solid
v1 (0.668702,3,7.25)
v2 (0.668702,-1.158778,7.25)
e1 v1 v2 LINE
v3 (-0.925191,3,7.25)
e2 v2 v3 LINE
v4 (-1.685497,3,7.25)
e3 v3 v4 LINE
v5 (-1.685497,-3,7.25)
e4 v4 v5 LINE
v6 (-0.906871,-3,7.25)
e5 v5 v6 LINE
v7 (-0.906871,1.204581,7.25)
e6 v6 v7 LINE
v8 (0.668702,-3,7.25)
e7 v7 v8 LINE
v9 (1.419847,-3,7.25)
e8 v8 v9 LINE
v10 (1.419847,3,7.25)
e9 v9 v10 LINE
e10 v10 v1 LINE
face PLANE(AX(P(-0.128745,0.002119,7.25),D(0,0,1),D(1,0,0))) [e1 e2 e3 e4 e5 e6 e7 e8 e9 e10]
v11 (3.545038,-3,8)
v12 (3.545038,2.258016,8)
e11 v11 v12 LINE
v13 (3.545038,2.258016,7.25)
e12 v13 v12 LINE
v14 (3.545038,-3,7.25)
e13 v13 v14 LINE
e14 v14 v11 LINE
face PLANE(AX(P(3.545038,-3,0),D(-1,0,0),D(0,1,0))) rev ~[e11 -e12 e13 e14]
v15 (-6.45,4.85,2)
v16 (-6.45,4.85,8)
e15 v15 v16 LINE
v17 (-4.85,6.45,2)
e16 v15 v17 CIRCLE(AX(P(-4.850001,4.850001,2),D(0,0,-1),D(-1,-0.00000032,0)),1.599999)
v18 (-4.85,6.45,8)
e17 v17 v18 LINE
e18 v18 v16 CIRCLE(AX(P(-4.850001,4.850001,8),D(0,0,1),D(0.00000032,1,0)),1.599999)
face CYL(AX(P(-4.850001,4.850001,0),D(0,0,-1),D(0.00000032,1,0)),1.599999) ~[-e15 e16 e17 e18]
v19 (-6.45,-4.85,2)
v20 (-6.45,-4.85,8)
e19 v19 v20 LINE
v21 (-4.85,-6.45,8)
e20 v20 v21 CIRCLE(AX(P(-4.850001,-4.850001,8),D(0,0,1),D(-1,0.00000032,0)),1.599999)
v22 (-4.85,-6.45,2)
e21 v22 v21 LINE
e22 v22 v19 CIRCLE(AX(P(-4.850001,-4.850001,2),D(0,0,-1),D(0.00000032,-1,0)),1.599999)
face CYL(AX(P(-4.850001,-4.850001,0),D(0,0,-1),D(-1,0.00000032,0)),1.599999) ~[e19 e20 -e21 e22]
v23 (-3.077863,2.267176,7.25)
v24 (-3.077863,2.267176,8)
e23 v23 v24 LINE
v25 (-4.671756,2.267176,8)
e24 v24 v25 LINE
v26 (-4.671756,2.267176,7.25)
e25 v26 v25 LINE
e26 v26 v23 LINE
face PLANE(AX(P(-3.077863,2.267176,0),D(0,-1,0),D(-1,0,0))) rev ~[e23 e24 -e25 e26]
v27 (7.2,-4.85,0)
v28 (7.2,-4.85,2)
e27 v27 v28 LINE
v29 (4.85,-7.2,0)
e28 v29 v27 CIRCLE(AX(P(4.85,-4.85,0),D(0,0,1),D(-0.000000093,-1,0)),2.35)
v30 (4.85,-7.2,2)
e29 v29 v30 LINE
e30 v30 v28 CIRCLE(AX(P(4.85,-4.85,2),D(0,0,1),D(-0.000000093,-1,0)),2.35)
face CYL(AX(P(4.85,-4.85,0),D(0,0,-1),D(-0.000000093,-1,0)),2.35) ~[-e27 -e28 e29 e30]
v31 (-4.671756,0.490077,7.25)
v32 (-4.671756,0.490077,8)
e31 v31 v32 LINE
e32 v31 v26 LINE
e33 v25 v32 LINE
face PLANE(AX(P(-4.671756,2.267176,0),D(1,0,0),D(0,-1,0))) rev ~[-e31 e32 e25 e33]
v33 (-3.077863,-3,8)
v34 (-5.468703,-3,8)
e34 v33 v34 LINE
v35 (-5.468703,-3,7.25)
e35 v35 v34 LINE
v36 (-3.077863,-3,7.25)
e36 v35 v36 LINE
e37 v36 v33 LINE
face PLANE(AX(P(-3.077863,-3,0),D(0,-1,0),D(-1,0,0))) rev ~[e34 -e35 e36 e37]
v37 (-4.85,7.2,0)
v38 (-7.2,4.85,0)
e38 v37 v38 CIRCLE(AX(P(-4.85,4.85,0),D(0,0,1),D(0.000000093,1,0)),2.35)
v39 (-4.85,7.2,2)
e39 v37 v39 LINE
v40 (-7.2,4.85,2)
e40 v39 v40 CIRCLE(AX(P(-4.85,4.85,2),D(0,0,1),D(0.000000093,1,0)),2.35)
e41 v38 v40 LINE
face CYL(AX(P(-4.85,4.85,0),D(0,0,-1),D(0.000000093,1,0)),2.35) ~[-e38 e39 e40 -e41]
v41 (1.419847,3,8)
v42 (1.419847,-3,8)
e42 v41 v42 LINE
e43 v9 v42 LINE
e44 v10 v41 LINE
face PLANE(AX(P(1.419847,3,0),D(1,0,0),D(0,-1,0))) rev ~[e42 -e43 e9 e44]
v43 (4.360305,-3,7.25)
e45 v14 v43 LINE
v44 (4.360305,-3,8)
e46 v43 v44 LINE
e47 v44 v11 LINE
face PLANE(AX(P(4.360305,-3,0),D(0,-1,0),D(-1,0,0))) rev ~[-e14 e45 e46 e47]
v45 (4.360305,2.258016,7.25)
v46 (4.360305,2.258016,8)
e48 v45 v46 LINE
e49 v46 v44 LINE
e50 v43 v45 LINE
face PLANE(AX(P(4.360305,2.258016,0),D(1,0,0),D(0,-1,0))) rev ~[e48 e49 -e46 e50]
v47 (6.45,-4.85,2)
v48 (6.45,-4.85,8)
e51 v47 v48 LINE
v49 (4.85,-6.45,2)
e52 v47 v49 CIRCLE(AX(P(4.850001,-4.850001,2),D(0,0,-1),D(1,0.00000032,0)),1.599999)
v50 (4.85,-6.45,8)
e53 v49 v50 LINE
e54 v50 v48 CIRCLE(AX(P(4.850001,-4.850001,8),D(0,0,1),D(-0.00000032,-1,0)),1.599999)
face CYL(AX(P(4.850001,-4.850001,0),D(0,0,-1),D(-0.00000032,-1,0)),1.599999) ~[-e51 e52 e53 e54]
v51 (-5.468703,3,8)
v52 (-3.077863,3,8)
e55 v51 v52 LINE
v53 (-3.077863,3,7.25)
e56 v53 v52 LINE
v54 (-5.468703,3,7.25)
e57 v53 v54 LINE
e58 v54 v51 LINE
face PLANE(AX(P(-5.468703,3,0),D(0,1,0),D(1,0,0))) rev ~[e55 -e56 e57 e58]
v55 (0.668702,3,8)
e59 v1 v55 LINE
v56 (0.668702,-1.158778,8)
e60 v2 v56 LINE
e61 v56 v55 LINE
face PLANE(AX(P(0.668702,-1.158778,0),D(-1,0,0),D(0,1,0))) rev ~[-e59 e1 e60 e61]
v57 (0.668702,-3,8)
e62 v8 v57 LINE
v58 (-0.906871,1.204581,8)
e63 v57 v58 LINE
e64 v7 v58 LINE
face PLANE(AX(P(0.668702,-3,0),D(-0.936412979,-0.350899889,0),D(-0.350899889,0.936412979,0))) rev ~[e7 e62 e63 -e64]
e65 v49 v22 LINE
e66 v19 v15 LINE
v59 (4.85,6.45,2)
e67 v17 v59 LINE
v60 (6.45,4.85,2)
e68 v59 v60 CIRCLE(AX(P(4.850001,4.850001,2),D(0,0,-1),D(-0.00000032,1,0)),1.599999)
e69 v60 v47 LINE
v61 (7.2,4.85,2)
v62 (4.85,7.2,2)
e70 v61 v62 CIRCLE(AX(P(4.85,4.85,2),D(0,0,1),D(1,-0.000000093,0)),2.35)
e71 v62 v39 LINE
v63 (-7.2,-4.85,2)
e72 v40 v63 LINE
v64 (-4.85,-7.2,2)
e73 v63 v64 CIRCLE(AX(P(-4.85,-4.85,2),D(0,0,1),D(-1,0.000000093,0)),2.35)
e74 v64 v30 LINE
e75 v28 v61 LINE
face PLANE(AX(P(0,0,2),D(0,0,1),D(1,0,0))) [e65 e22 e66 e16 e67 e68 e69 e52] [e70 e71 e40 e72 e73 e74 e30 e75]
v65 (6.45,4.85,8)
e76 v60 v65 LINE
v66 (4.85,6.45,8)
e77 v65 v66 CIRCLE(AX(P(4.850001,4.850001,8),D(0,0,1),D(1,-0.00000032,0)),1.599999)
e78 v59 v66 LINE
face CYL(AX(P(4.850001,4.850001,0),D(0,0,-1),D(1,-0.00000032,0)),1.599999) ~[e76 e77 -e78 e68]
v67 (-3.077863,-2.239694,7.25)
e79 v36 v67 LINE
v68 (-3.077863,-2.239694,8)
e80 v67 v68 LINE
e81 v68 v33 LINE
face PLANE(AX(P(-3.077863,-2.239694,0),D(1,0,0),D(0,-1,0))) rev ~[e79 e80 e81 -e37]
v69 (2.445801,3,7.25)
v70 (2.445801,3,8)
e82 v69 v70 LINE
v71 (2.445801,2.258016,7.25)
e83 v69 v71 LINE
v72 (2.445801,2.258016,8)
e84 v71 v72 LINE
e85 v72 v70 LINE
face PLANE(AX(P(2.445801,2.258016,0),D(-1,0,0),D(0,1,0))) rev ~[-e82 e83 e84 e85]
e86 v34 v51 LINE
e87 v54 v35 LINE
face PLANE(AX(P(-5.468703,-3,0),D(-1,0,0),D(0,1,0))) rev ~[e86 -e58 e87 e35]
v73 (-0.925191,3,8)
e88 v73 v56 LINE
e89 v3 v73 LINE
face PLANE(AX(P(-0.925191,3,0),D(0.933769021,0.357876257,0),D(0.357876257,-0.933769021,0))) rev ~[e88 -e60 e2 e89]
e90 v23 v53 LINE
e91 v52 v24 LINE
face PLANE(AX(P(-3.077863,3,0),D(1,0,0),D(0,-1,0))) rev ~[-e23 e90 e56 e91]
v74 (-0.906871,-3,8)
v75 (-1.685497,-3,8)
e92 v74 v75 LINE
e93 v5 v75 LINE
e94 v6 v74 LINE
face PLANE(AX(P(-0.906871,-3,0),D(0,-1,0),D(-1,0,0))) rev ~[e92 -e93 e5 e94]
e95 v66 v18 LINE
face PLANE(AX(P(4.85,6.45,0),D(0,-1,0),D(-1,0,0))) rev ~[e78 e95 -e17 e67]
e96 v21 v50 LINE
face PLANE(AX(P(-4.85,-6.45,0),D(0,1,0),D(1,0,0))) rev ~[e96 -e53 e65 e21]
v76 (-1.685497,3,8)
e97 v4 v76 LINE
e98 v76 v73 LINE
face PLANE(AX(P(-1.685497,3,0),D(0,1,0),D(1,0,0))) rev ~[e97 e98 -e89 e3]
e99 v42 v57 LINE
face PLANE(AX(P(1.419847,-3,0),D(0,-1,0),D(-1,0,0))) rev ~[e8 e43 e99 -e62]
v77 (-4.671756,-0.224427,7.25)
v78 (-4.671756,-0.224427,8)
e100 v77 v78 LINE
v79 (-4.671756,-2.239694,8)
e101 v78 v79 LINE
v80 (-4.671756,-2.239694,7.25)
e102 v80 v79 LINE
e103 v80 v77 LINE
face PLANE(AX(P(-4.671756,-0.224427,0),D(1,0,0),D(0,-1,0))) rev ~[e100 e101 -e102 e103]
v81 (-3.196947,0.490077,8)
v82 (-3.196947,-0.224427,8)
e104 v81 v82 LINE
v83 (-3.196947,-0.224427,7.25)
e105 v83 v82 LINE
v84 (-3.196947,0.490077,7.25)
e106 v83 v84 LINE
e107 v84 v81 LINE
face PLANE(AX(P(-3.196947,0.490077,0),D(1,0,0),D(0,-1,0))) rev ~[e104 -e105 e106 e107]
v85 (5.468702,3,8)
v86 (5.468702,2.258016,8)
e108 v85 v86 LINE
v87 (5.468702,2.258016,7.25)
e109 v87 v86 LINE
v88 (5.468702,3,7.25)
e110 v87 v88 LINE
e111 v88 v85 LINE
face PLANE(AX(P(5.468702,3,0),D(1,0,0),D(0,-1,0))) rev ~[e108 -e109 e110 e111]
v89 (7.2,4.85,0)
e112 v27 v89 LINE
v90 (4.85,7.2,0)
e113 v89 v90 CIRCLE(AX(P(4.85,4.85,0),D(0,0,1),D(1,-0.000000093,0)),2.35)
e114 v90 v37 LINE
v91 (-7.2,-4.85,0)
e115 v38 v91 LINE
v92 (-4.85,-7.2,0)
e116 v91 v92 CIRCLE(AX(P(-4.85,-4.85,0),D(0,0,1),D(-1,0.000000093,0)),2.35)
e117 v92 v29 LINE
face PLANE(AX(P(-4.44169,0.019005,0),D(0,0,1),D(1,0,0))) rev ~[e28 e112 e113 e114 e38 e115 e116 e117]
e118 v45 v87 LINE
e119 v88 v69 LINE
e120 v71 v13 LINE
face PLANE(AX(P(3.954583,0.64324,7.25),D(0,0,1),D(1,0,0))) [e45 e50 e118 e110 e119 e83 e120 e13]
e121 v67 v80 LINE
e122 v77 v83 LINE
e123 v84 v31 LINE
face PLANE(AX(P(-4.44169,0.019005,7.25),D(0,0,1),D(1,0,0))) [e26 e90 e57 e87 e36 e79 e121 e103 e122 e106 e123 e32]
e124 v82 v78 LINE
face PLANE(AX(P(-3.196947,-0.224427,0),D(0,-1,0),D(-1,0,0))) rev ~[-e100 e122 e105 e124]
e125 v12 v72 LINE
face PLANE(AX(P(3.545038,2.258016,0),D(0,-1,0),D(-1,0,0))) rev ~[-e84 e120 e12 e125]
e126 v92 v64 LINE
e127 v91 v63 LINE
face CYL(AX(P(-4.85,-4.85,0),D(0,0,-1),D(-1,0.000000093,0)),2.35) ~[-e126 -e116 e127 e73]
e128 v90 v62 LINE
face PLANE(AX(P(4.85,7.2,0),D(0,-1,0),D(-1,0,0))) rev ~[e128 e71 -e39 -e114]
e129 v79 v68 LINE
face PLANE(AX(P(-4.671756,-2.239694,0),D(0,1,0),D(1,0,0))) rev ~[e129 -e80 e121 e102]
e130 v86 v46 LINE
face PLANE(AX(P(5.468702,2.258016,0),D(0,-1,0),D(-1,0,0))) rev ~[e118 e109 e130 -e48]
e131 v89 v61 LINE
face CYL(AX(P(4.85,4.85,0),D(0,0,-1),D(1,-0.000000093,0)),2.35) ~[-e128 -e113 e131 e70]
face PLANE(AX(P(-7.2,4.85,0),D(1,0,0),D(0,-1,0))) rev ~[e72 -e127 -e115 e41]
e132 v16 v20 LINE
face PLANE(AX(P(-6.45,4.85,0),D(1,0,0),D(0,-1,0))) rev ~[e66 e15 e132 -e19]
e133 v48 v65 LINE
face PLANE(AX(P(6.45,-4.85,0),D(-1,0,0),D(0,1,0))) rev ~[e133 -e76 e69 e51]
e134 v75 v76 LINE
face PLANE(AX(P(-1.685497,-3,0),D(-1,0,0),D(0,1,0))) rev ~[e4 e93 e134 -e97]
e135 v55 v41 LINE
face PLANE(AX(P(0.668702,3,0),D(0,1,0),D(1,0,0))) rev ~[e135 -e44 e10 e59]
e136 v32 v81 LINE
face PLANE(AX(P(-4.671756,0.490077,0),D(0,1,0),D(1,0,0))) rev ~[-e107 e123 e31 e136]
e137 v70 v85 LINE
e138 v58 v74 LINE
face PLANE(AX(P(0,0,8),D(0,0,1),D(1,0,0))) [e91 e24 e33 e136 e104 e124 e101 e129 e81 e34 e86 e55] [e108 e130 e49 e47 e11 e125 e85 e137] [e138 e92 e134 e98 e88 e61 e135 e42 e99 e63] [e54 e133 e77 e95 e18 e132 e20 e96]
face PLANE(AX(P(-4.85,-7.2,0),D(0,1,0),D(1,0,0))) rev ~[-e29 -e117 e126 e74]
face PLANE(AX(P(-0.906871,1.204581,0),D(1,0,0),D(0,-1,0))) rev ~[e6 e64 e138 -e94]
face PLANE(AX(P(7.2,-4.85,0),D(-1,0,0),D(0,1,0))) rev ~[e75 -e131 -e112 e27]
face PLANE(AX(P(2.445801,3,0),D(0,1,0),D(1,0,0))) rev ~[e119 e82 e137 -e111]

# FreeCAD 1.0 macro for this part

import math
import FreeCAD as App
import Part
import Sketcher
from FreeCAD import Vector
Q = App.Units.Quantity

doc = App.newDocument("Part")
body = doc.addObject("PartDesign::Body", "Body")

# Sketch on XY plane
sketch1 = body.newObject("Sketcher::SketchObject", "Sketch")
sketch1.AttachmentSupport = (doc.getObject("XY_Plane"), [""])
sketch1.MapMode = "FlatFace"
sketch1.addGeometry(Part.LineSegment(Vector(4.85, 7.2, 0), Vector(-4.85, 7.2, 0)), False)
sketch1.addGeometry(Part.ArcOfCircle(Part.Circle(Vector(-4.85, 4.85, 0), Vector(0, 0, 1), 2.35), math.radians(89.999995), math.radians(180.000005)), False)
sketch1.addGeometry(Part.LineSegment(Vector(-7.2, 4.85, 0), Vector(-7.2, -4.85, 0)), False)
sketch1.addGeometry(Part.ArcOfCircle(Part.Circle(Vector(-4.85, -4.85, 0), Vector(0, 0, 1), 2.35), math.radians(179.999995), math.radians(270.000005)), False)
sketch1.addGeometry(Part.LineSegment(Vector(-4.85, -7.2, 0), Vector(4.85, -7.2, 0)), False)
sketch1.addGeometry(Part.ArcOfCircle(Part.Circle(Vector(4.85, -4.85, 0), Vector(0, 0, 1), 2.35), math.radians(-90.000005), math.radians(0.000005)), False)
sketch1.addGeometry(Part.LineSegment(Vector(7.2, -4.85, 0), Vector(7.2, 4.85, 0)), False)
sketch1.addGeometry(Part.ArcOfCircle(Part.Circle(Vector(4.85, 4.85, 0), Vector(0, 0, 1), 2.35), math.radians(-0.000005), math.radians(90.000005)), False)
sketch1.addGeometry(Part.LineSegment(Vector(6.45, 4.85, 0), Vector(6.45, -4.85, 0)), False)
sketch1.addGeometry(Part.ArcOfCircle(Part.Circle(Vector(4.850001, -4.850001, 0), Vector(0, 0, 1), 1.599999), math.radians(-90.000018), math.radians(0.000018)), False)
sketch1.addGeometry(Part.LineSegment(Vector(4.85, -6.45, 0), Vector(-4.85, -6.45, 0)), False)
sketch1.addGeometry(Part.ArcOfCircle(Part.Circle(Vector(-4.850001, -4.850001, 0), Vector(0, 0, 1), 1.599999), math.radians(179.999982), math.radians(270.000018)), False)
sketch1.addGeometry(Part.LineSegment(Vector(-6.45, -4.85, 0), Vector(-6.45, 4.85, 0)), False)
sketch1.addGeometry(Part.ArcOfCircle(Part.Circle(Vector(-4.850001, 4.850001, 0), Vector(0, 0, 1), 1.599999), math.radians(89.999982), math.radians(180.000018)), False)
sketch1.addGeometry(Part.LineSegment(Vector(-4.85, 6.45, 0), Vector(4.85, 6.45, 0)), False)
sketch1.addGeometry(Part.ArcOfCircle(Part.Circle(Vector(4.850001, 4.850001, 0), Vector(0, 0, 1), 1.599999), math.radians(-0.000018), math.radians(90.000018)), False)
sketch1.addConstraint(Sketcher.Constraint("Tangent", 0, 2, 1, 1))
sketch1.addConstraint(Sketcher.Constraint("Tangent", 1, 2, 2, 1))
sketch1.addConstraint(Sketcher.Constraint("Tangent", 2, 2, 3, 1))
sketch1.addConstraint(Sketcher.Constraint("Tangent", 3, 2, 4, 1))
sketch1.addConstraint(Sketcher.Constraint("Tangent", 4, 2, 5, 1))
sketch1.addConstraint(Sketcher.Constraint("Tangent", 5, 2, 6, 1))
sketch1.addConstraint(Sketcher.Constraint("Tangent", 6, 2, 7, 1))
sketch1.addConstraint(Sketcher.Constraint("Tangent", 7, 2, 0, 1))
sketch1.addConstraint(Sketcher.Constraint("Tangent", 8, 2, 9, 2))
sketch1.addConstraint(Sketcher.Constraint("Tangent", 9, 1, 10, 1))
sketch1.addConstraint(Sketcher.Constraint("Tangent", 10, 2, 11, 2))
sketch1.addConstraint(Sketcher.Constraint("Tangent", 11, 1, 12, 1))
sketch1.addConstraint(Sketcher.Constraint("Tangent", 12, 2, 13, 2))
sketch1.addConstraint(Sketcher.Constraint("Tangent", 13, 1, 14, 1))
sketch1.addConstraint(Sketcher.Constraint("Tangent", 14, 2, 15, 2))
sketch1.addConstraint(Sketcher.Constraint("Tangent", 15, 1, 8, 1))
sketch1.addConstraint(Sketcher.Constraint("Horizontal", 0))
sketch1.addConstraint(Sketcher.Constraint("Vertical", 2))
sketch1.addConstraint(Sketcher.Constraint("Horizontal", 4))
sketch1.addConstraint(Sketcher.Constraint("Vertical", 6))
sketch1.addConstraint(Sketcher.Constraint("Vertical", 8))
sketch1.addConstraint(Sketcher.Constraint("Horizontal", 10))
sketch1.addConstraint(Sketcher.Constraint("Vertical", 12))
sketch1.addConstraint(Sketcher.Constraint("Horizontal", 14))
sketch1.addConstraint(Sketcher.Constraint("Coincident", 9, 3, 5, 3))
sketch1.addConstraint(Sketcher.Constraint("Coincident", 11, 3, 3, 3))
sketch1.addConstraint(Sketcher.Constraint("Coincident", 13, 3, 1, 3))
sketch1.addConstraint(Sketcher.Constraint("Equal", 1, 3))
sketch1.addConstraint(Sketcher.Constraint("Equal", 3, 5))
sketch1.addConstraint(Sketcher.Constraint("Equal", 5, 7))
sketch1.addConstraint(Sketcher.Constraint("Equal", 13, 15))
sketch1.addConstraint(Sketcher.Constraint("Symmetric", 1, 3, 5, 3, -1, 1))
sketch1.addConstraint(Sketcher.Constraint("Equal", 14, 2))
sketch1.addConstraint(Sketcher.Constraint("Radius", 9, Q("1.599999 mm")))
sketch1.addConstraint(Sketcher.Constraint("Radius", 1, Q("2.35 mm")))
sketch1.addConstraint(Sketcher.Constraint("DistanceX", 0, 2, 0, 1, Q("9.7 mm")))
pad1 = body.newObject("PartDesign::Pad", "Pad")
pad1.Profile = sketch1
pad1.Length = 2

# Sketch on XY plane
sketch2 = body.newObject("Sketcher::SketchObject", "Sketch001")
sketch2.AttachmentSupport = (doc.getObject("XY_Plane"), [""])
sketch2.MapMode = "FlatFace"
sketch2.addGeometry(Part.LineSegment(Vector(-4.85, -6.45, 0), Vector(4.85, -6.45, 0)), False)
sketch2.addGeometry(Part.ArcOfCircle(Part.Circle(Vector(4.850001, -4.850001, 0), Vector(0, 0, 1), 1.599999), math.radians(-90.000018), math.radians(0.000018)), False)
sketch2.addGeometry(Part.LineSegment(Vector(6.45, -4.85, 0), Vector(6.45, 4.85, 0)), False)
sketch2.addGeometry(Part.ArcOfCircle(Part.Circle(Vector(4.850001, 4.850001, 0), Vector(0, 0, 1), 1.599999), math.radians(-0.000018), math.radians(90.000018)), False)
sketch2.addGeometry(Part.LineSegment(Vector(4.85, 6.45, 0), Vector(-4.85, 6.45, 0)), False)
sketch2.addGeometry(Part.ArcOfCircle(Part.Circle(Vector(-4.850001, 4.850001, 0), Vector(0, 0, 1), 1.599999), math.radians(89.999982), math.radians(180.000018)), False)
sketch2.addGeometry(Part.LineSegment(Vector(-6.45, 4.85, 0), Vector(-6.45, -4.85, 0)), False)
sketch2.addGeometry(Part.ArcOfCircle(Part.Circle(Vector(-4.850001, -4.850001, 0), Vector(0, 0, 1), 1.599999), math.radians(179.999982), math.radians(270.000018)), False)
sketch2.addGeometry(Part.LineSegment(Vector(-3.077863, -2.239694, 0), Vector(-3.077863, -3, 0)), False)
sketch2.addGeometry(Part.LineSegment(Vector(-3.077863, -3, 0), Vector(-5.468703, -3, 0)), False)
sketch2.addGeometry(Part.LineSegment(Vector(-5.468703, -3, 0), Vector(-5.468703, 3, 0)), False)
sketch2.addGeometry(Part.LineSegment(Vector(-5.468703, 3, 0), Vector(-3.077863, 3, 0)), False)
sketch2.addGeometry(Part.LineSegment(Vector(-3.077863, 3, 0), Vector(-3.077863, 2.267176, 0)), False)
sketch2.addGeometry(Part.LineSegment(Vector(-3.077863, 2.267176, 0), Vector(-4.671756, 2.267176, 0)), False)
sketch2.addGeometry(Part.LineSegment(Vector(-4.671756, 2.267176, 0), Vector(-4.671756, 0.490077, 0)), False)
sketch2.addGeometry(Part.LineSegment(Vector(-4.671756, 0.490077, 0), Vector(-3.196947, 0.490077, 0)), False)
sketch2.addGeometry(Part.LineSegment(Vector(-3.196947, 0.490077, 0), Vector(-3.196947, -0.224427, 0)), False)
sketch2.addGeometry(Part.LineSegment(Vector(-3.196947, -0.224427, 0), Vector(-4.671756, -0.224427, 0)), False)
sketch2.addGeometry(Part.LineSegment(Vector(-4.671756, -0.224427, 0), Vector(-4.671756, -2.239694, 0)), False)
sketch2.addGeometry(Part.LineSegment(Vector(-4.671756, -2.239694, 0), Vector(-3.077863, -2.239694, 0)), False)
sketch2.addGeometry(Part.LineSegment(Vector(-0.906871, 1.204581, 0), Vector(-0.906871, -3, 0)), False)
sketch2.addGeometry(Part.LineSegment(Vector(-0.906871, -3, 0), Vector(-1.685497, -3, 0)), False)
sketch2.addGeometry(Part.LineSegment(Vector(-1.685497, -3, 0), Vector(-1.685497, 3, 0)), False)
sketch2.addGeometry(Part.LineSegment(Vector(-1.685497, 3, 0), Vector(-0.925191, 3, 0)), False)
sketch2.addGeometry(Part.LineSegment(Vector(-0.925191, 3, 0), Vector(0.668702, -1.158778, 0)), False)
sketch2.addGeometry(Part.LineSegment(Vector(0.668702, -1.158778, 0), Vector(0.668702, 3, 0)), False)
sketch2.addGeometry(Part.LineSegment(Vector(0.668702, 3, 0), Vector(1.419847, 3, 0)), False)
sketch2.addGeometry(Part.LineSegment(Vector(1.419847, 3, 0), Vector(1.419847, -3, 0)), False)
sketch2.addGeometry(Part.LineSegment(Vector(1.419847, -3, 0), Vector(0.668702, -3, 0)), False)
sketch2.addGeometry(Part.LineSegment(Vector(0.668702, -3, 0), Vector(-0.906871, 1.204581, 0)), False)
sketch2.addGeometry(Part.LineSegment(Vector(4.360305, 2.258016, 0), Vector(4.360305, -3, 0)), False)
sketch2.addGeometry(Part.LineSegment(Vector(4.360305, -3, 0), Vector(3.545038, -3, 0)), False)
sketch2.addGeometry(Part.LineSegment(Vector(3.545038, -3, 0), Vector(3.545038, 2.258016, 0)), False)
sketch2.addGeometry(Part.LineSegment(Vector(3.545038, 2.258016, 0), Vector(2.445801, 2.258016, 0)), False)
sketch2.addGeometry(Part.LineSegment(Vector(2.445801, 2.258016, 0), Vector(2.445801, 3, 0)), False)
sketch2.addGeometry(Part.LineSegment(Vector(2.445801, 3, 0), Vector(5.468702, 3, 0)), False)
sketch2.addGeometry(Part.LineSegment(Vector(5.468702, 3, 0), Vector(5.468702, 2.258016, 0)), False)
sketch2.addGeometry(Part.LineSegment(Vector(5.468702, 2.258016, 0), Vector(4.360305, 2.258016, 0)), False)
sketch2.addConstraint(Sketcher.Constraint("Tangent", 0, 2, 1, 1))
sketch2.addConstraint(Sketcher.Constraint("Tangent", 1, 2, 2, 1))
sketch2.addConstraint(Sketcher.Constraint("Tangent", 2, 2, 3, 1))
sketch2.addConstraint(Sketcher.Constraint("Tangent", 3, 2, 4, 1))
sketch2.addConstraint(Sketcher.Constraint("Tangent", 4, 2, 5, 1))
sketch2.addConstraint(Sketcher.Constraint("Tangent", 5, 2, 6, 1))
sketch2.addConstraint(Sketcher.Constraint("Tangent", 6, 2, 7, 1))
sketch2.addConstraint(Sketcher.Constraint("Tangent", 7, 2, 0, 1))
sketch2.addConstraint(Sketcher.Constraint("Coincident", 8, 2, 9, 1))
sketch2.addConstraint(Sketcher.Constraint("Coincident", 9, 2, 10, 1))
sketch2.addConstraint(Sketcher.Constraint("Coincident", 10, 2, 11, 1))
sketch2.addConstraint(Sketcher.Constraint("Coincident", 11, 2, 12, 1))
sketch2.addConstraint(Sketcher.Constraint("Coincident", 12, 2, 13, 1))
sketch2.addConstraint(Sketcher.Constraint("Coincident", 13, 2, 14, 1))
sketch2.addConstraint(Sketcher.Constraint("Coincident", 14, 2, 15, 1))
sketch2.addConstraint(Sketcher.Constraint("Coincident", 15, 2, 16, 1))
sketch2.addConstraint(Sketcher.Constraint("Coincident", 16, 2, 17, 1))
sketch2.addConstraint(Sketcher.Constraint("Coincident", 17, 2, 18, 1))
sketch2.addConstraint(Sketcher.Constraint("Coincident", 18, 2, 19, 1))
sketch2.addConstraint(Sketcher.Constraint("Coincident", 19, 2, 8, 1))
sketch2.addConstraint(Sketcher.Constraint("Coincident", 20, 2, 21, 1))
sketch2.addConstraint(Sketcher.Constraint("Coincident", 21, 2, 22, 1))
sketch2.addConstraint(Sketcher.Constraint("Coincident", 22, 2, 23, 1))
sketch2.addConstraint(Sketcher.Constraint("Coincident", 23, 2, 24, 1))
sketch2.addConstraint(Sketcher.Constraint("Coincident", 24, 2, 25, 1))
sketch2.addConstraint(Sketcher.Constraint("Coincident", 25, 2, 26, 1))
sketch2.addConstraint(Sketcher.Constraint("Coincident", 26, 2, 27, 1))
sketch2.addConstraint(Sketcher.Constraint("Coincident", 27, 2, 28, 1))
sketch2.addConstraint(Sketcher.Constraint("Coincident", 28, 2, 29, 1))
sketch2.addConstraint(Sketcher.Constraint("Coincident", 29, 2, 20, 1))
sketch2.addConstraint(Sketcher.Constraint("Coincident", 30, 2, 31, 1))
sketch2.addConstraint(Sketcher.Constraint("Coincident", 31, 2, 32, 1))
sketch2.addConstraint(Sketcher.Constraint("Coincident", 32, 2, 33, 1))
sketch2.addConstraint(Sketcher.Constraint("Coincident", 33, 2, 34, 1))
sketch2.addConstraint(Sketcher.Constraint("Coincident", 34, 2, 35, 1))
sketch2.addConstraint(Sketcher.Constraint("Coincident", 35, 2, 36, 1))
sketch2.addConstraint(Sketcher.Constraint("Coincident", 36, 2, 37, 1))
sketch2.addConstraint(Sketcher.Constraint("Coincident", 37, 2, 30, 1))
sketch2.addConstraint(Sketcher.Constraint("Horizontal", 0))
sketch2.addConstraint(Sketcher.Constraint("Vertical", 2))
sketch2.addConstraint(Sketcher.Constraint("Horizontal", 4))
sketch2.addConstraint(Sketcher.Constraint("Vertical", 6))
sketch2.addConstraint(Sketcher.Constraint("Vertical", 8))
sketch2.addConstraint(Sketcher.Constraint("Horizontal", 9))
sketch2.addConstraint(Sketcher.Constraint("Vertical", 10))
sketch2.addConstraint(Sketcher.Constraint("Horizontal", 11))
sketch2.addConstraint(Sketcher.Constraint("Vertical", 12))
sketch2.addConstraint(Sketcher.Constraint("Horizontal", 13))
sketch2.addConstraint(Sketcher.Constraint("Vertical", 14))
sketch2.addConstraint(Sketcher.Constraint("Horizontal", 15))
sketch2.addConstraint(Sketcher.Constraint("Vertical", 16))
sketch2.addConstraint(Sketcher.Constraint("Horizontal", 17))
sketch2.addConstraint(Sketcher.Constraint("Vertical", 18))
sketch2.addConstraint(Sketcher.Constraint("Horizontal", 19))
sketch2.addConstraint(Sketcher.Constraint("Vertical", 20))
sketch2.addConstraint(Sketcher.Constraint("Horizontal", 21))
sketch2.addConstraint(Sketcher.Constraint("Vertical", 22))
sketch2.addConstraint(Sketcher.Constraint("Horizontal", 23))
sketch2.addConstraint(Sketcher.Constraint("Vertical", 25))
sketch2.addConstraint(Sketcher.Constraint("Horizontal", 26))
sketch2.addConstraint(Sketcher.Constraint("Vertical", 27))
sketch2.addConstraint(Sketcher.Constraint("Horizontal", 28))
sketch2.addConstraint(Sketcher.Constraint("Vertical", 30))
sketch2.addConstraint(Sketcher.Constraint("Horizontal", 31))
sketch2.addConstraint(Sketcher.Constraint("Vertical", 32))
sketch2.addConstraint(Sketcher.Constraint("Horizontal", 33))
sketch2.addConstraint(Sketcher.Constraint("Vertical", 34))
sketch2.addConstraint(Sketcher.Constraint("Horizontal", 35))
sketch2.addConstraint(Sketcher.Constraint("Vertical", 36))
sketch2.addConstraint(Sketcher.Constraint("Horizontal", 37))
sketch2.addConstraint(Sketcher.Constraint("Equal", 1, 3))
sketch2.addConstraint(Sketcher.Constraint("Equal", 3, 5))
sketch2.addConstraint(Sketcher.Constraint("Equal", 5, 7))
sketch2.addConstraint(Sketcher.Constraint("Symmetric", 1, 3, 5, 3, -1, 1))
sketch2.addConstraint(Sketcher.Constraint("Symmetric", 9, 2, 35, 2, -1, 1))
sketch2.addConstraint(Sketcher.Constraint("Symmetric", 8, 2, 11, 2, -1))
sketch2.addConstraint(Sketcher.Constraint("Symmetric", 25, 2, 28, 2, -1))
sketch2.addConstraint(Sketcher.Constraint("Horizontal", 9, 2, 20, 2))
sketch2.addConstraint(Sketcher.Constraint("Horizontal", 11, 2, 22, 2))
sketch2.addConstraint(Sketcher.Constraint("Horizontal", 23, 2, 25, 2))
sketch2.addConstraint(Sketcher.Constraint("Horizontal", 28, 2, 30, 2))
sketch2.addConstraint(Sketcher.Constraint("Horizontal", 33, 2, 36, 2))
sketch2.addConstraint(Sketcher.Constraint("Vertical", 14, 2, 17, 2))
sketch2.addConstraint(Sketcher.Constraint("Equal", 4, 2))
sketch2.addConstraint(Sketcher.Constraint("Equal", 23, 8))
sketch2.addConstraint(Sketcher.Constraint("Radius", 1, Q("1.599999 mm")))
sketch2.addConstraint(Sketcher.Constraint("DistanceY", 10, 1, 10, 2, Q("6 mm")))
sketch2.addConstraint(Sketcher.Constraint("DistanceX", 0, 1, 0, 2, Q("9.7 mm")))
sketch2.addConstraint(Sketcher.Constraint("DistanceX", 35, 1, 35, 2, Q("3.022901 mm")))
sketch2.addConstraint(Sketcher.Constraint("DistanceY", 14, 2, 14, 1, Q("1.777099 mm")))
sketch2.addConstraint(Sketcher.Constraint("DistanceX", 9, 2, 9, 1, Q("2.39084 mm")))
sketch2.addConstraint(Sketcher.Constraint("DistanceX", 15, 1, 15, 2, Q("1.474809 mm")))
sketch2.addConstraint(Sketcher.Constraint("DistanceY", 20, 2, 20, 1, Q("4.204581 mm")))
sketch2.addConstraint(Sketcher.Constraint("DistanceX", -1, 1, 33, 2, Q("2.445801 mm")))
sketch2.addConstraint(Sketcher.Constraint("DistanceX", 21, 2, 24, 2, Q("2.354199 mm")))
sketch2.addConstraint(Sketcher.Constraint("DistanceX", 25, 2, 33, 2, Q("1.777099 mm")))
sketch2.addConstraint(Sketcher.Constraint("DistanceX", 13, 2, 13, 1, Q("1.593893 mm")))
sketch2.addConstraint(Sketcher.Constraint("DistanceX", 21, 2, 21, 1, Q("0.778626 mm")))
sketch2.addConstraint(Sketcher.Constraint("DistanceX", 23, 1, 23, 2, Q("0.760306 mm")))
sketch2.addConstraint(Sketcher.Constraint("DistanceX", 26, 1, 26, 2, Q("0.751145 mm")))
sketch2.addConstraint(Sketcher.Constraint("DistanceX", 31, 2, 31, 1, Q("0.815267 mm")))
sketch2.addConstraint(Sketcher.Constraint("DistanceX", 33, 2, 33, 1, Q("1.099237 mm")))
sketch2.addConstraint(Sketcher.Constraint("DistanceY", 12, 2, 12, 1, Q("0.732824 mm")))
sketch2.addConstraint(Sketcher.Constraint("DistanceY", 16, 2, 16, 1, Q("0.714504 mm")))
sketch2.addConstraint(Sketcher.Constraint("DistanceY", 25, 1, 25, 2, Q("4.158778 mm")))
sketch2.addConstraint(Sketcher.Constraint("DistanceY", 30, 2, 30, 1, Q("5.258016 mm")))
pad2 = body.newObject("PartDesign::Pad", "Pad001")
pad2.Profile = sketch2
pad2.Length = 8

# Sketch on XY plane
sketch3 = body.newObject("Sketcher::SketchObject", "Sketch002")
sketch3.AttachmentSupport = (doc.getObject("XY_Plane"), [""])
sketch3.MapMode = "FlatFace"
sketch3.addGeometry(Part.LineSegment(Vector(-5.468703, 3, 0), Vector(-5.468703, -3, 0)), False)
sketch3.addGeometry(Part.LineSegment(Vector(-5.468703, -3, 0), Vector(-3.077863, -3, 0)), False)
sketch3.addGeometry(Part.LineSegment(Vector(-3.077863, -3, 0), Vector(-3.077863, -2.239694, 0)), False)
sketch3.addGeometry(Part.LineSegment(Vector(-3.077863, -2.239694, 0), Vector(-4.671756, -2.239694, 0)), False)
sketch3.addGeometry(Part.LineSegment(Vector(-4.671756, -2.239694, 0), Vector(-4.671756, -0.224427, 0)), False)
sketch3.addGeometry(Part.LineSegment(Vector(-4.671756, -0.224427, 0), Vector(-3.196947, -0.224427, 0)), False)
sketch3.addGeometry(Part.LineSegment(Vector(-3.196947, -0.224427, 0), Vector(-3.196947, 0.490077, 0)), False)
sketch3.addGeometry(Part.LineSegment(Vector(-3.196947, 0.490077, 0), Vector(-4.671756, 0.490077, 0)), False)
sketch3.addGeometry(Part.LineSegment(Vector(-4.671756, 0.490077, 0), Vector(-4.671756, 2.267176, 0)), False)
sketch3.addGeometry(Part.LineSegment(Vector(-4.671756, 2.267176, 0), Vector(-3.077863, 2.267176, 0)), False)
sketch3.addGeometry(Part.LineSegment(Vector(-3.077863, 2.267176, 0), Vector(-3.077863, 3, 0)), False)
sketch3.addGeometry(Part.LineSegment(Vector(-3.077863, 3, 0), Vector(-5.468703, 3, 0)), False)
sketch3.addGeometry(Part.LineSegment(Vector(-1.685497, 3, 0), Vector(-1.685497, -3, 0)), False)
sketch3.addGeometry(Part.LineSegment(Vector(-1.685497, -3, 0), Vector(-0.906871, -3, 0)), False)
sketch3.addGeometry(Part.LineSegment(Vector(-0.906871, -3, 0), Vector(-0.906871, 1.204581, 0)), False)
sketch3.addGeometry(Part.LineSegment(Vector(-0.906871, 1.204581, 0), Vector(0.668702, -3, 0)), False)
sketch3.addGeometry(Part.LineSegment(Vector(0.668702, -3, 0), Vector(1.419847, -3, 0)), False)
sketch3.addGeometry(Part.LineSegment(Vector(1.419847, -3, 0), Vector(1.419847, 3, 0)), False)
sketch3.addGeometry(Part.LineSegment(Vector(1.419847, 3, 0), Vector(0.668702, 3, 0)), False)
sketch3.addGeometry(Part.LineSegment(Vector(0.668702, 3, 0), Vector(0.668702, -1.158778, 0)), False)
sketch3.addGeometry(Part.LineSegment(Vector(0.668702, -1.158778, 0), Vector(-0.925191, 3, 0)), False)
sketch3.addGeometry(Part.LineSegment(Vector(-0.925191, 3, 0), Vector(-1.685497, 3, 0)), False)
sketch3.addGeometry(Part.LineSegment(Vector(3.545038, 2.258016, 0), Vector(3.545038, -3, 0)), False)
sketch3.addGeometry(Part.LineSegment(Vector(3.545038, -3, 0), Vector(4.360305, -3, 0)), False)
sketch3.addGeometry(Part.LineSegment(Vector(4.360305, -3, 0), Vector(4.360305, 2.258016, 0)), False)
sketch3.addGeometry(Part.LineSegment(Vector(4.360305, 2.258016, 0), Vector(5.468702, 2.258016, 0)), False)
sketch3.addGeometry(Part.LineSegment(Vector(5.468702, 2.258016, 0), Vector(5.468702, 3, 0)), False)
sketch3.addGeometry(Part.LineSegment(Vector(5.468702, 3, 0), Vector(2.445801, 3, 0)), False)
sketch3.addGeometry(Part.LineSegment(Vector(2.445801, 3, 0), Vector(2.445801, 2.258016, 0)), False)
sketch3.addGeometry(Part.LineSegment(Vector(2.445801, 2.258016, 0), Vector(3.545038, 2.258016, 0)), False)
sketch3.addConstraint(Sketcher.Constraint("Coincident", 0, 2, 1, 1))
sketch3.addConstraint(Sketcher.Constraint("Coincident", 1, 2, 2, 1))
sketch3.addConstraint(Sketcher.Constraint("Coincident", 2, 2, 3, 1))
sketch3.addConstraint(Sketcher.Constraint("Coincident", 3, 2, 4, 1))
sketch3.addConstraint(Sketcher.Constraint("Coincident", 4, 2, 5, 1))
sketch3.addConstraint(Sketcher.Constraint("Coincident", 5, 2, 6, 1))
sketch3.addConstraint(Sketcher.Constraint("Coincident", 6, 2, 7, 1))
sketch3.addConstraint(Sketcher.Constraint("Coincident", 7, 2, 8, 1))
sketch3.addConstraint(Sketcher.Constraint("Coincident", 8, 2, 9, 1))
sketch3.addConstraint(Sketcher.Constraint("Coincident", 9, 2, 10, 1))
sketch3.addConstraint(Sketcher.Constraint("Coincident", 10, 2, 11, 1))
sketch3.addConstraint(Sketcher.Constraint("Coincident", 11, 2, 0, 1))
sketch3.addConstraint(Sketcher.Constraint("Coincident", 12, 2, 13, 1))
sketch3.addConstraint(Sketcher.Constraint("Coincident", 13, 2, 14, 1))
sketch3.addConstraint(Sketcher.Constraint("Coincident", 14, 2, 15, 1))
sketch3.addConstraint(Sketcher.Constraint("Coincident", 15, 2, 16, 1))
sketch3.addConstraint(Sketcher.Constraint("Coincident", 16, 2, 17, 1))
sketch3.addConstraint(Sketcher.Constraint("Coincident", 17, 2, 18, 1))
sketch3.addConstraint(Sketcher.Constraint("Coincident", 18, 2, 19, 1))
sketch3.addConstraint(Sketcher.Constraint("Coincident", 19, 2, 20, 1))
sketch3.addConstraint(Sketcher.Constraint("Coincident", 20, 2, 21, 1))
sketch3.addConstraint(Sketcher.Constraint("Coincident", 21, 2, 12, 1))
sketch3.addConstraint(Sketcher.Constraint("Coincident", 22, 2, 23, 1))
sketch3.addConstraint(Sketcher.Constraint("Coincident", 23, 2, 24, 1))
sketch3.addConstraint(Sketcher.Constraint("Coincident", 24, 2, 25, 1))
sketch3.addConstraint(Sketcher.Constraint("Coincident", 25, 2, 26, 1))
sketch3.addConstraint(Sketcher.Constraint("Coincident", 26, 2, 27, 1))
sketch3.addConstraint(Sketcher.Constraint("Coincident", 27, 2, 28, 1))
sketch3.addConstraint(Sketcher.Constraint("Coincident", 28, 2, 29, 1))
sketch3.addConstraint(Sketcher.Constraint("Coincident", 29, 2, 22, 1))
sketch3.addConstraint(Sketcher.Constraint("Vertical", 0))
sketch3.addConstraint(Sketcher.Constraint("Horizontal", 1))
sketch3.addConstraint(Sketcher.Constraint("Vertical", 2))
sketch3.addConstraint(Sketcher.Constraint("Horizontal", 3))
sketch3.addConstraint(Sketcher.Constraint("Vertical", 4))
sketch3.addConstraint(Sketcher.Constraint("Horizontal", 5))
sketch3.addConstraint(Sketcher.Constraint("Vertical", 6))
sketch3.addConstraint(Sketcher.Constraint("Horizontal", 7))
sketch3.addConstraint(Sketcher.Constraint("Vertical", 8))
sketch3.addConstraint(Sketcher.Constraint("Horizontal", 9))
sketch3.addConstraint(Sketcher.Constraint("Vertical", 10))
sketch3.addConstraint(Sketcher.Constraint("Horizontal", 11))
sketch3.addConstraint(Sketcher.Constraint("Vertical", 12))
sketch3.addConstraint(Sketcher.Constraint("Horizontal", 13))
sketch3.addConstraint(Sketcher.Constraint("Vertical", 14))
sketch3.addConstraint(Sketcher.Constraint("Horizontal", 16))
sketch3.addConstraint(Sketcher.Constraint("Vertical", 17))
sketch3.addConstraint(Sketcher.Constraint("Horizontal", 18))
sketch3.addConstraint(Sketcher.Constraint("Vertical", 19))
sketch3.addConstraint(Sketcher.Constraint("Horizontal", 21))
sketch3.addConstraint(Sketcher.Constraint("Vertical", 22))
sketch3.addConstraint(Sketcher.Constraint("Horizontal", 23))
sketch3.addConstraint(Sketcher.Constraint("Vertical", 24))
sketch3.addConstraint(Sketcher.Constraint("Horizontal", 25))
sketch3.addConstraint(Sketcher.Constraint("Vertical", 26))
sketch3.addConstraint(Sketcher.Constraint("Horizontal", 27))
sketch3.addConstraint(Sketcher.Constraint("Vertical", 28))
sketch3.addConstraint(Sketcher.Constraint("Horizontal", 29))
sketch3.addConstraint(Sketcher.Constraint("Symmetric", 0, 2, 26, 2, -1, 1))
sketch3.addConstraint(Sketcher.Constraint("Symmetric", 1, 2, 10, 2, -1))
sketch3.addConstraint(Sketcher.Constraint("Symmetric", 15, 2, 18, 2, -1))
sketch3.addConstraint(Sketcher.Constraint("Horizontal", 1, 2, 12, 2))
sketch3.addConstraint(Sketcher.Constraint("Horizontal", 13, 2, 15, 2))
sketch3.addConstraint(Sketcher.Constraint("Horizontal", 18, 2, 20, 2))
sketch3.addConstraint(Sketcher.Constraint("Horizontal", 16, 2, 22, 2))
sketch3.addConstraint(Sketcher.Constraint("Horizontal", 25, 2, 28, 2))
sketch3.addConstraint(Sketcher.Constraint("Vertical", 4, 2, 7, 2))
sketch3.addConstraint(Sketcher.Constraint("Equal", 21, 2))
sketch3.addConstraint(Sketcher.Constraint("DistanceY", 0, 2, 0, 1, Q("6 mm")))
sketch3.addConstraint(Sketcher.Constraint("DistanceX", 18, 2, 25, 2, Q("4.8 mm")))
sketch3.addConstraint(Sketcher.Constraint("DistanceX", 27, 2, 27, 1, Q("3.022901 mm")))
sketch3.addConstraint(Sketcher.Constraint("DistanceY", 8, 1, 8, 2, Q("1.777099 mm")))
sketch3.addConstraint(Sketcher.Constraint("DistanceX", 1, 1, 1, 2, Q("2.39084 mm")))
sketch3.addConstraint(Sketcher.Constraint("DistanceX", 5, 1, 5, 2, Q("1.474809 mm")))
sketch3.addConstraint(Sketcher.Constraint("DistanceY", 14, 1, 14, 2, Q("4.204581 mm")))
sketch3.addConstraint(Sketcher.Constraint("DistanceX", -1, 1, 27, 2, Q("2.445801 mm")))
sketch3.addConstraint(Sketcher.Constraint("DistanceX", 12, 2, 15, 2, Q("2.354199 mm")))
sketch3.addConstraint(Sketcher.Constraint("DistanceX", 3, 2, 3, 1, Q("1.593893 mm")))
sketch3.addConstraint(Sketcher.Constraint("DistanceX", 13, 1, 13, 2, Q("0.778626 mm")))
sketch3.addConstraint(Sketcher.Constraint("DistanceX", 16, 1, 16, 2, Q("0.751145 mm")))
sketch3.addConstraint(Sketcher.Constraint("DistanceX", 21, 2, 21, 1, Q("0.760306 mm")))
sketch3.addConstraint(Sketcher.Constraint("DistanceX", 23, 1, 23, 2, Q("0.815267 mm")))
sketch3.addConstraint(Sketcher.Constraint("DistanceX", 25, 1, 25, 2, Q("1.108397 mm")))
sketch3.addConstraint(Sketcher.Constraint("DistanceY", 4, 1, 4, 2, Q("2.015267 mm")))
sketch3.addConstraint(Sketcher.Constraint("DistanceY", 6, 1, 6, 2, Q("0.714504 mm")))
sketch3.addConstraint(Sketcher.Constraint("DistanceY", 19, 2, 19, 1, Q("4.158778 mm")))
sketch3.addConstraint(Sketcher.Constraint("DistanceY", 22, 2, 22, 1, Q("5.258016 mm")))
pad3 = body.newObject("PartDesign::Pad", "Pad002")
pad3.Profile = sketch3
pad3.Length = 7.25

doc.recompute()
